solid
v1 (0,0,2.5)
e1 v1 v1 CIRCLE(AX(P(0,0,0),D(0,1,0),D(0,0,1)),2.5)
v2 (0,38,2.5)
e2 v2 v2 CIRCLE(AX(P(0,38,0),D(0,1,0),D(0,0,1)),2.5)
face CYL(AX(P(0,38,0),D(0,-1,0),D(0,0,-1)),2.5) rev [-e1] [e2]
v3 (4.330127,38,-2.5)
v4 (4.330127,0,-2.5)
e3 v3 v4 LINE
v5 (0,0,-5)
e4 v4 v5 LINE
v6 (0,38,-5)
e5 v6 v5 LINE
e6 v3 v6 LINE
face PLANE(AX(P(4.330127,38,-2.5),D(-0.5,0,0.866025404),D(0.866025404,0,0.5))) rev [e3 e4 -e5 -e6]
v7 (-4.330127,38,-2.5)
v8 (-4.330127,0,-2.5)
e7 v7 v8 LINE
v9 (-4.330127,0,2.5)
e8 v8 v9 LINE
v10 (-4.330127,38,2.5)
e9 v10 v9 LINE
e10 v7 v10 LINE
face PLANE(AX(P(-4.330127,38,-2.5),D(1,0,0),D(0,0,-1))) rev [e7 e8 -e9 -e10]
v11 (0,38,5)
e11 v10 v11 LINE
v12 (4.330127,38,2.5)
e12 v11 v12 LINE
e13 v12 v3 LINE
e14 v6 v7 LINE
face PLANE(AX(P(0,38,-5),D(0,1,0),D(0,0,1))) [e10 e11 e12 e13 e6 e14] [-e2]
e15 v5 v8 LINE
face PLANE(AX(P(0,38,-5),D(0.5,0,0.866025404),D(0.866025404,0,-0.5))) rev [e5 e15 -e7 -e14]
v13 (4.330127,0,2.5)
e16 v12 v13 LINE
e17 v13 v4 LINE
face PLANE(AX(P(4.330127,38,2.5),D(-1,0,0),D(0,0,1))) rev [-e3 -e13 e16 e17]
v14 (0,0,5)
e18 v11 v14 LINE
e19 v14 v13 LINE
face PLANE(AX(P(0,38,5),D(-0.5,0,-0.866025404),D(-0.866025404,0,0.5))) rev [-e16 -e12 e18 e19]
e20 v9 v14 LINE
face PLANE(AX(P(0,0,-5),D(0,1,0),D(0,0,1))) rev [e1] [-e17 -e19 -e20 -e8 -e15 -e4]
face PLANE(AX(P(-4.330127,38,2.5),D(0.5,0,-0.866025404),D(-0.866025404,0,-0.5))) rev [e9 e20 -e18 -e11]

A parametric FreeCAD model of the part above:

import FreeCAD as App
import Part
import Sketcher
Q = App.Units.Quantity


def add_polygon(sketch, points):
    """Adds a closed chain of lines whose ends are joined by coincident constraints."""
    first, n = sketch.GeometryCount, len(points)
    for a, b in zip(points, points[1:] + points[:1]):
        sketch.addGeometry(Part.LineSegment(App.Vector(*a, 0), App.Vector(*b, 0)), False)
    for i in range(n):
        sketch.addConstraint(Sketcher.Constraint("Coincident", first + i, 2, first + (i + 1) % n, 1))

doc = App.newDocument("Part")
body = doc.addObject("PartDesign::Body", "Body")

# Sketch on XZ plane
sketch1 = doc.addObject("Sketcher::SketchObject", "Sketch")
body.addObject(sketch1)
sketch1.AttachmentSupport = (doc.XZ_Plane, [""])
sketch1.MapMode = "FlatFace"
add_polygon(sketch1, [(0, -5), (-4.3, -2.5), (-4.3, 2.5), (0, 5), (4.3, 2.5), (4.3, -2.5)])  # lines 0-5
sketch1.addGeometry(Part.Circle(App.Vector(0, 0, 0), App.Vector(0, 0, 1), 2.5), False)  # 6
sketch1.addConstraint(Sketcher.Constraint("Vertical", 1))
sketch1.addConstraint(Sketcher.Constraint("Vertical", 4))
sketch1.addConstraint(Sketcher.Constraint("Coincident", 6, 3, -1, 1))
sketch1.addConstraint(Sketcher.Constraint("Symmetric", 0, 2, 3, 2, -1, 1))
sketch1.addConstraint(Sketcher.Constraint("Symmetric", 2, 2, 5, 2, -1, 1))
sketch1.addConstraint(Sketcher.Constraint("PointOnObject", 2, 2, -2))
sketch1.addConstraint(Sketcher.Constraint("Parallel", 2, 5))
sketch1.addConstraint(Sketcher.Constraint("Horizontal", 1, 2, 3, 2))
sketch1.addConstraint(Sketcher.Constraint("Diameter", 6, 5.0))
sketch1.addConstraint(Sketcher.Constraint("DistanceY", 1, 1, 1, 2, 5.0))
sketch1.addConstraint(Sketcher.Constraint("Angle", 0, Q("150 deg")))
sketch1.addConstraint(Sketcher.Constraint("Distance", 0, 5.0))
pad1 = doc.addObject("PartDesign::Pad", "Pad")
body.addObject(pad1)
pad1.Profile = sketch1
pad1.Length = 38
pad1.Reversed = True

doc.recompute()
